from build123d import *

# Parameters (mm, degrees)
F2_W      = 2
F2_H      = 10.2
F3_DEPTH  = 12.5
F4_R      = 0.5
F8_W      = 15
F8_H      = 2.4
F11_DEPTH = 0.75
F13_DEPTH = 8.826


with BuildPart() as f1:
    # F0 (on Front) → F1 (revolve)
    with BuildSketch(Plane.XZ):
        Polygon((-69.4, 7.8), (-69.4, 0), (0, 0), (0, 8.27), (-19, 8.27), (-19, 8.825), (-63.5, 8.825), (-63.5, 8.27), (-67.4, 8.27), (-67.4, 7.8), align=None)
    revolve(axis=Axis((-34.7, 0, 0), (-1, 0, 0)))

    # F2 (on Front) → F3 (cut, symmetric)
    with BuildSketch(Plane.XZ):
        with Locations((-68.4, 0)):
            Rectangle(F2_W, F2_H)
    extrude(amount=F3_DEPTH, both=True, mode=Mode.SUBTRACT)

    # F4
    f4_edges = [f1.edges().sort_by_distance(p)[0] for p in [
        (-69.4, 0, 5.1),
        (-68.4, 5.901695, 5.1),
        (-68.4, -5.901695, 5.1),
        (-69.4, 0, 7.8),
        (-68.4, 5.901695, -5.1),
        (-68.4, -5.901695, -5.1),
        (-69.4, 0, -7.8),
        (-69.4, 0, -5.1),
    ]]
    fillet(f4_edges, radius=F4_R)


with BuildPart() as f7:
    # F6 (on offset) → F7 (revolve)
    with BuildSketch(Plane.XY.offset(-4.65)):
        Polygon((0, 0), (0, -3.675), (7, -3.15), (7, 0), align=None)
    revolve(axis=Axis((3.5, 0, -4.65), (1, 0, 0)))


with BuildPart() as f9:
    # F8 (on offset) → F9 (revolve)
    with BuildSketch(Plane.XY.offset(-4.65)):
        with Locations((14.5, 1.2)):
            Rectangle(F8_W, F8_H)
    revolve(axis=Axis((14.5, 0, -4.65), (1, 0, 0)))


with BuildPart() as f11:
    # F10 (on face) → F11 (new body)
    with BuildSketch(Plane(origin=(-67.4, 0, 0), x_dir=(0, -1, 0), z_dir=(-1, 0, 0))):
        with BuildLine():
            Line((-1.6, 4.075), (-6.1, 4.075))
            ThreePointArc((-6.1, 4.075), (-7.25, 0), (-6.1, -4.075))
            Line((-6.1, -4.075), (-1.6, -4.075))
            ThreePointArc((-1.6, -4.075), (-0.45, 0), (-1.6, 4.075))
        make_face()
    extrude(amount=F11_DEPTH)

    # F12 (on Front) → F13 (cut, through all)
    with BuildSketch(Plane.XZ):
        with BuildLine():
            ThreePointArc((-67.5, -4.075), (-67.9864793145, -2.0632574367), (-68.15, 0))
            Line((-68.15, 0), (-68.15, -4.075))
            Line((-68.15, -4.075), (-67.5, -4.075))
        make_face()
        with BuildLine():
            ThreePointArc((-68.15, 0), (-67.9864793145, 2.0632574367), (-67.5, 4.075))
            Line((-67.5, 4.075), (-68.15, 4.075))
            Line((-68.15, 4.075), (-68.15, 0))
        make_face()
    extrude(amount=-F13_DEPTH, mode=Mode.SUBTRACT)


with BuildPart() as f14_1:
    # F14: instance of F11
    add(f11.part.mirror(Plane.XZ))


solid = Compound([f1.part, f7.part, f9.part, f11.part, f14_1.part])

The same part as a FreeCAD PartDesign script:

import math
import FreeCAD as App
import Part
import Sketcher
from FreeCAD import Vector


def edges_at(feature, points):
    """Names of the edges that pass closest to the given points."""
    edges = feature.Shape.Edges
    near = lambda p: min(range(len(edges)), key=lambda i: edges[i].distToShape(Part.Vertex(*p))[0])
    return sorted({f"Edge{near(p) + 1}" for p in points})


def add_polygon(sketch, points):
    """Adds a closed chain of lines whose ends are joined by coincident constraints."""
    first, n = sketch.GeometryCount, len(points)
    for a, b in zip(points, points[1:] + points[:1]):
        sketch.addGeometry(Part.LineSegment(App.Vector(*a, 0), App.Vector(*b, 0)), False)
    for i in range(n):
        sketch.addConstraint(Sketcher.Constraint("Coincident", first + i, 2, first + (i + 1) % n, 1))

doc = App.newDocument("Part")
body = doc.addObject("PartDesign::Body", "Body")

# Sketch on XZ plane
sketch1 = body.newObject("Sketcher::SketchObject", "Sketch")
sketch1.AttachmentSupport = (doc.getObject("XZ_Plane"), [""])
sketch1.MapMode = "FlatFace"
add_polygon(sketch1, [(-69.4, 7.8), (-69.4, 0), (0, 0), (0, 8.27), (-19, 8.27), (-19, 8.825), (-63.5, 8.825), (-63.5, 8.27), (-67.4, 8.27), (-67.4, 7.8)])  # lines 0-9
sketch1.addConstraint([
    Sketcher.Constraint("Vertical", 0),
    Sketcher.Constraint("Horizontal", 1),
    Sketcher.Constraint("Vertical", 2),
    Sketcher.Constraint("Horizontal", 3),
    Sketcher.Constraint("Vertical", 4),
    Sketcher.Constraint("Horizontal", 5),
    Sketcher.Constraint("Vertical", 6),
    Sketcher.Constraint("Horizontal", 7),
    Sketcher.Constraint("Vertical", 8),
    Sketcher.Constraint("Horizontal", 9),
    Sketcher.Constraint("Coincident", 1, 2, -1, 1),
    Sketcher.Constraint("Horizontal", 3, 2, 6, 2),
    Sketcher.Constraint("DistanceX", 3, 2, 3, 1, 19.0),
    Sketcher.Constraint("DistanceX", 9, 2, 9, 1, 2.0),
    Sketcher.Constraint("DistanceX", 1, 1, 1, 2, 69.4),
    Sketcher.Constraint("DistanceX", 5, 2, 5, 1, 44.5),
    Sketcher.Constraint("DistanceY", 0, 2, 0, 1, 7.8),
    Sketcher.Constraint("DistanceY", 2, 1, 2, 2, 8.27),
    Sketcher.Constraint("DistanceY", 4, 1, 4, 2, 0.555),
])
revolution = body.newObject("PartDesign::Revolution", "Revolution")
revolution.Profile = sketch1
revolution.ReferenceAxis = (sketch1, ["H_Axis"])
revolution.Angle = 360

# Sketch on XZ plane
sketch2 = body.newObject("Sketcher::SketchObject", "Sketch001")
sketch2.AttachmentSupport = (doc.getObject("XZ_Plane"), [""])
sketch2.MapMode = "FlatFace"
add_polygon(sketch2, [(-69.4, 5.1), (-69.4, -5.1), (-67.4, -5.1), (-67.4, 5.1)])  # lines 0-3
sketch2.addConstraint([
    Sketcher.Constraint("Vertical", 0),
    Sketcher.Constraint("Horizontal", 1),
    Sketcher.Constraint("Vertical", 2),
    Sketcher.Constraint("Horizontal", 3),
    Sketcher.Constraint("DistanceX", 1, 1, 1, 2, 2.0),
    Sketcher.Constraint("DistanceY", 0, 2, 0, 1, 10.2),
    Sketcher.Constraint("DistanceX", 0, 2, -1, 1, 69.4),
    Sketcher.Constraint("DistanceY", 0, 2, -1, 1, 5.1),
])
pocket1 = body.newObject("PartDesign::Pocket", "Pocket")
pocket1.Profile = sketch2
pocket1.Length = 25
pocket1.Midplane = True
doc.recompute()

fillet = body.newObject("PartDesign::Fillet", "Fillet")
fillet.Base = (pocket1, edges_at(pocket1, [
    (-69.4, 0, 5.1),
    (-68.4, 5.902, 5.1),
    (-68.4, -5.902, 5.1),
    (-69.4, 0, 7.8),
    (-68.4, 5.902, -5.1),
    (-68.4, -5.902, -5.1),
    (-69.4, 0, -7.8),
    (-69.4, 0, -5.1),
]))
fillet.Radius = 0.5
body2 = doc.addObject("PartDesign::Body", "Body001")

# Sketch on XY plane
sketch3 = body2.newObject("Sketcher::SketchObject", "Sketch002")
sketch3.AttachmentSupport = (doc.getObject("XY_Plane001"), [""])
sketch3.MapMode = "FlatFace"
sketch3.AttachmentOffset = App.Placement(Vector(0, 0, -4.65), App.Rotation())
add_polygon(sketch3, [(0, 0), (0, -3.675), (7, -3.15), (7, 0)])  # lines 0-3
sketch3.addConstraint([
    Sketcher.Constraint("Vertical", 0),
    Sketcher.Constraint("Vertical", 2),
    Sketcher.Constraint("Horizontal", 3),
    Sketcher.Constraint("Coincident", 3, 2, -1, 1),
    Sketcher.Constraint("DistanceX", 3, 2, 3, 1, 7.0),
    Sketcher.Constraint("DistanceY", 2, 1, 2, 2, 3.15),
    Sketcher.Constraint("DistanceY", 0, 2, 0, 1, 3.675),
])
revolution2 = body2.newObject("PartDesign::Revolution", "Revolution001")
revolution2.Profile = sketch3
revolution2.ReferenceAxis = (sketch3, ["H_Axis"])
revolution2.Angle = 360
body3 = doc.addObject("PartDesign::Body", "Body002")

# Sketch on XY plane
sketch4 = body3.newObject("Sketcher::SketchObject", "Sketch003")
sketch4.AttachmentSupport = (doc.getObject("XY_Plane002"), [""])
sketch4.MapMode = "FlatFace"
sketch4.AttachmentOffset = App.Placement(Vector(0, 0, -4.65), App.Rotation())
add_polygon(sketch4, [(7, 2.4), (7, 0), (22, 0), (22, 2.4)])  # lines 0-3
sketch4.addConstraint([
    Sketcher.Constraint("Vertical", 0),
    Sketcher.Constraint("Horizontal", 1),
    Sketcher.Constraint("Vertical", 2),
    Sketcher.Constraint("Horizontal", 3),
    Sketcher.Constraint("PointOnObject", 0, 2, -1),
    Sketcher.Constraint("DistanceX", 1, 1, 1, 2, 15.0),
    Sketcher.Constraint("DistanceY", 0, 2, 0, 1, 2.4),
    Sketcher.Constraint("DistanceX", -1, 1, 0, 2, 7.0),
])
revolution3 = body3.newObject("PartDesign::Revolution", "Revolution002")
revolution3.Profile = sketch4
revolution3.ReferenceAxis = (sketch4, ["H_Axis"])
revolution3.Angle = 360
body4 = doc.addObject("PartDesign::Body", "Body003")

# Sketch on YZ plane
sketch5 = body4.newObject("Sketcher::SketchObject", "Sketch004")
sketch5.AttachmentSupport = (doc.getObject("YZ_Plane003"), [""])
sketch5.MapMode = "FlatFace"
sketch5.AttachmentOffset = App.Placement(Vector(0, 0, -67.4), App.Rotation())
sketch5.addGeometry([
    Part.LineSegment(Vector(1.6, 4.075, 0), Vector(6.1, 4.075, 0)),
    Part.ArcOfCircle(Part.Circle(Vector(-0.544837, 0, 0), Vector(0, 0, 1), 7.794837), math.radians(-31.519044), math.radians(31.519044)),
    Part.LineSegment(Vector(6.1, -4.075, 0), Vector(1.6, -4.075, 0)),
    Part.ArcOfCircle(Part.Circle(Vector(8.244837, 0, 0), Vector(0, 0, 1), 7.794837), math.radians(148.480956), math.radians(211.519044)),
], False)
sketch5.addConstraint([
    Sketcher.Constraint("Coincident", 0, 2, 1, 2),
    Sketcher.Constraint("Coincident", 1, 1, 2, 1),
    Sketcher.Constraint("Coincident", 2, 2, 3, 2),
    Sketcher.Constraint("Coincident", 3, 1, 0, 1),
    Sketcher.Constraint("Horizontal", 0),
    Sketcher.Constraint("Horizontal", 2),
    Sketcher.Constraint("Equal", 1, 3),
    Sketcher.Constraint("Symmetric", 0, 2, 1, 1, -1),
    Sketcher.Constraint("PointOnObject", 3, 3, -1),
    Sketcher.Constraint("DistanceX", 0, 1, 0, 2, 4.5),
    Sketcher.Constraint("DistanceX", -1, 1, 0, 2, 6.1),
    Sketcher.Constraint("DistanceY", 1, 1, 0, 2, 8.15),
    Sketcher.Constraint("Radius", 1, 7.794837),
])
pad1 = body4.newObject("PartDesign::Pad", "Pad")
pad1.Profile = sketch5
pad1.Length = 0.75
pad1.Reversed = True

# Sketch on XZ plane
sketch6 = body4.newObject("Sketcher::SketchObject", "Sketch005")
sketch6.AttachmentSupport = (doc.getObject("XZ_Plane003"), [""])
sketch6.MapMode = "FlatFace"
sketch6.addGeometry([
    Part.ArcOfCircle(Part.Circle(Vector(-55.051442, 0, 0), Vector(0, 0, 1), 13.098558), math.radians(-180), math.radians(-161.874288)),  # 0
    Part.LineSegment(Vector(-68.15, 0, 0), Vector(-68.15, -4.075, 0)),  # 1
    Part.LineSegment(Vector(-68.15, -4.075, 0), Vector(-67.5, -4.075, 0)),  # 2
    Part.ArcOfCircle(Part.Circle(Vector(-55.051442, 0, 0), Vector(0, 0, 1), 13.098558), math.radians(161.874288), math.radians(180)),  # 3
    Part.LineSegment(Vector(-67.5, 4.075, 0), Vector(-68.15, 4.075, 0)),  # 4
    Part.LineSegment(Vector(-68.15, 4.075, 0), Vector(-68.15, 0, 0)),  # 5
], False)
sketch6.addConstraint([
    Sketcher.Constraint("Tangent", 0, 1, 1, 1),
    Sketcher.Constraint("Coincident", 1, 2, 2, 1),
    Sketcher.Constraint("Coincident", 2, 2, 0, 2),
    Sketcher.Constraint("Coincident", 3, 1, 4, 1),
    Sketcher.Constraint("Coincident", 4, 2, 5, 1),
    Sketcher.Constraint("Tangent", 5, 2, 3, 2),
    Sketcher.Constraint("Vertical", 1),
    Sketcher.Constraint("Horizontal", 2),
    Sketcher.Constraint("Horizontal", 4),
    Sketcher.Constraint("Vertical", 5),
    Sketcher.Constraint("Coincident", 3, 3, 0, 3),
    Sketcher.Constraint("Equal", 0, 3),
    Sketcher.Constraint("Symmetric", 2, 2, 3, 1, -1),
    Sketcher.Constraint("DistanceX", 2, 1, 2, 2, 0.65),
    Sketcher.Constraint("DistanceX", 2, 2, -1, 1, 67.5),
    Sketcher.Constraint("DistanceY", 1, 2, 1, 1, 4.075),
])
pocket2 = body4.newObject("PartDesign::Pocket", "Pocket001")
pocket2.Profile = sketch6
pocket2.Type = "ThroughAll"
body5 = doc.addObject("PartDesign::Body", "Body004")
doc.recompute()

mirroring = doc.addObject("Part::Mirroring", "Mirroring")
mirroring.Source = body4
mirroring.Base = Vector(0, 0, 0)
mirroring.Normal = Vector(0, -1, 0)
body5.BaseFeature = mirroring
doc.recompute()
mirroring.Visibility = False

doc.recompute()
